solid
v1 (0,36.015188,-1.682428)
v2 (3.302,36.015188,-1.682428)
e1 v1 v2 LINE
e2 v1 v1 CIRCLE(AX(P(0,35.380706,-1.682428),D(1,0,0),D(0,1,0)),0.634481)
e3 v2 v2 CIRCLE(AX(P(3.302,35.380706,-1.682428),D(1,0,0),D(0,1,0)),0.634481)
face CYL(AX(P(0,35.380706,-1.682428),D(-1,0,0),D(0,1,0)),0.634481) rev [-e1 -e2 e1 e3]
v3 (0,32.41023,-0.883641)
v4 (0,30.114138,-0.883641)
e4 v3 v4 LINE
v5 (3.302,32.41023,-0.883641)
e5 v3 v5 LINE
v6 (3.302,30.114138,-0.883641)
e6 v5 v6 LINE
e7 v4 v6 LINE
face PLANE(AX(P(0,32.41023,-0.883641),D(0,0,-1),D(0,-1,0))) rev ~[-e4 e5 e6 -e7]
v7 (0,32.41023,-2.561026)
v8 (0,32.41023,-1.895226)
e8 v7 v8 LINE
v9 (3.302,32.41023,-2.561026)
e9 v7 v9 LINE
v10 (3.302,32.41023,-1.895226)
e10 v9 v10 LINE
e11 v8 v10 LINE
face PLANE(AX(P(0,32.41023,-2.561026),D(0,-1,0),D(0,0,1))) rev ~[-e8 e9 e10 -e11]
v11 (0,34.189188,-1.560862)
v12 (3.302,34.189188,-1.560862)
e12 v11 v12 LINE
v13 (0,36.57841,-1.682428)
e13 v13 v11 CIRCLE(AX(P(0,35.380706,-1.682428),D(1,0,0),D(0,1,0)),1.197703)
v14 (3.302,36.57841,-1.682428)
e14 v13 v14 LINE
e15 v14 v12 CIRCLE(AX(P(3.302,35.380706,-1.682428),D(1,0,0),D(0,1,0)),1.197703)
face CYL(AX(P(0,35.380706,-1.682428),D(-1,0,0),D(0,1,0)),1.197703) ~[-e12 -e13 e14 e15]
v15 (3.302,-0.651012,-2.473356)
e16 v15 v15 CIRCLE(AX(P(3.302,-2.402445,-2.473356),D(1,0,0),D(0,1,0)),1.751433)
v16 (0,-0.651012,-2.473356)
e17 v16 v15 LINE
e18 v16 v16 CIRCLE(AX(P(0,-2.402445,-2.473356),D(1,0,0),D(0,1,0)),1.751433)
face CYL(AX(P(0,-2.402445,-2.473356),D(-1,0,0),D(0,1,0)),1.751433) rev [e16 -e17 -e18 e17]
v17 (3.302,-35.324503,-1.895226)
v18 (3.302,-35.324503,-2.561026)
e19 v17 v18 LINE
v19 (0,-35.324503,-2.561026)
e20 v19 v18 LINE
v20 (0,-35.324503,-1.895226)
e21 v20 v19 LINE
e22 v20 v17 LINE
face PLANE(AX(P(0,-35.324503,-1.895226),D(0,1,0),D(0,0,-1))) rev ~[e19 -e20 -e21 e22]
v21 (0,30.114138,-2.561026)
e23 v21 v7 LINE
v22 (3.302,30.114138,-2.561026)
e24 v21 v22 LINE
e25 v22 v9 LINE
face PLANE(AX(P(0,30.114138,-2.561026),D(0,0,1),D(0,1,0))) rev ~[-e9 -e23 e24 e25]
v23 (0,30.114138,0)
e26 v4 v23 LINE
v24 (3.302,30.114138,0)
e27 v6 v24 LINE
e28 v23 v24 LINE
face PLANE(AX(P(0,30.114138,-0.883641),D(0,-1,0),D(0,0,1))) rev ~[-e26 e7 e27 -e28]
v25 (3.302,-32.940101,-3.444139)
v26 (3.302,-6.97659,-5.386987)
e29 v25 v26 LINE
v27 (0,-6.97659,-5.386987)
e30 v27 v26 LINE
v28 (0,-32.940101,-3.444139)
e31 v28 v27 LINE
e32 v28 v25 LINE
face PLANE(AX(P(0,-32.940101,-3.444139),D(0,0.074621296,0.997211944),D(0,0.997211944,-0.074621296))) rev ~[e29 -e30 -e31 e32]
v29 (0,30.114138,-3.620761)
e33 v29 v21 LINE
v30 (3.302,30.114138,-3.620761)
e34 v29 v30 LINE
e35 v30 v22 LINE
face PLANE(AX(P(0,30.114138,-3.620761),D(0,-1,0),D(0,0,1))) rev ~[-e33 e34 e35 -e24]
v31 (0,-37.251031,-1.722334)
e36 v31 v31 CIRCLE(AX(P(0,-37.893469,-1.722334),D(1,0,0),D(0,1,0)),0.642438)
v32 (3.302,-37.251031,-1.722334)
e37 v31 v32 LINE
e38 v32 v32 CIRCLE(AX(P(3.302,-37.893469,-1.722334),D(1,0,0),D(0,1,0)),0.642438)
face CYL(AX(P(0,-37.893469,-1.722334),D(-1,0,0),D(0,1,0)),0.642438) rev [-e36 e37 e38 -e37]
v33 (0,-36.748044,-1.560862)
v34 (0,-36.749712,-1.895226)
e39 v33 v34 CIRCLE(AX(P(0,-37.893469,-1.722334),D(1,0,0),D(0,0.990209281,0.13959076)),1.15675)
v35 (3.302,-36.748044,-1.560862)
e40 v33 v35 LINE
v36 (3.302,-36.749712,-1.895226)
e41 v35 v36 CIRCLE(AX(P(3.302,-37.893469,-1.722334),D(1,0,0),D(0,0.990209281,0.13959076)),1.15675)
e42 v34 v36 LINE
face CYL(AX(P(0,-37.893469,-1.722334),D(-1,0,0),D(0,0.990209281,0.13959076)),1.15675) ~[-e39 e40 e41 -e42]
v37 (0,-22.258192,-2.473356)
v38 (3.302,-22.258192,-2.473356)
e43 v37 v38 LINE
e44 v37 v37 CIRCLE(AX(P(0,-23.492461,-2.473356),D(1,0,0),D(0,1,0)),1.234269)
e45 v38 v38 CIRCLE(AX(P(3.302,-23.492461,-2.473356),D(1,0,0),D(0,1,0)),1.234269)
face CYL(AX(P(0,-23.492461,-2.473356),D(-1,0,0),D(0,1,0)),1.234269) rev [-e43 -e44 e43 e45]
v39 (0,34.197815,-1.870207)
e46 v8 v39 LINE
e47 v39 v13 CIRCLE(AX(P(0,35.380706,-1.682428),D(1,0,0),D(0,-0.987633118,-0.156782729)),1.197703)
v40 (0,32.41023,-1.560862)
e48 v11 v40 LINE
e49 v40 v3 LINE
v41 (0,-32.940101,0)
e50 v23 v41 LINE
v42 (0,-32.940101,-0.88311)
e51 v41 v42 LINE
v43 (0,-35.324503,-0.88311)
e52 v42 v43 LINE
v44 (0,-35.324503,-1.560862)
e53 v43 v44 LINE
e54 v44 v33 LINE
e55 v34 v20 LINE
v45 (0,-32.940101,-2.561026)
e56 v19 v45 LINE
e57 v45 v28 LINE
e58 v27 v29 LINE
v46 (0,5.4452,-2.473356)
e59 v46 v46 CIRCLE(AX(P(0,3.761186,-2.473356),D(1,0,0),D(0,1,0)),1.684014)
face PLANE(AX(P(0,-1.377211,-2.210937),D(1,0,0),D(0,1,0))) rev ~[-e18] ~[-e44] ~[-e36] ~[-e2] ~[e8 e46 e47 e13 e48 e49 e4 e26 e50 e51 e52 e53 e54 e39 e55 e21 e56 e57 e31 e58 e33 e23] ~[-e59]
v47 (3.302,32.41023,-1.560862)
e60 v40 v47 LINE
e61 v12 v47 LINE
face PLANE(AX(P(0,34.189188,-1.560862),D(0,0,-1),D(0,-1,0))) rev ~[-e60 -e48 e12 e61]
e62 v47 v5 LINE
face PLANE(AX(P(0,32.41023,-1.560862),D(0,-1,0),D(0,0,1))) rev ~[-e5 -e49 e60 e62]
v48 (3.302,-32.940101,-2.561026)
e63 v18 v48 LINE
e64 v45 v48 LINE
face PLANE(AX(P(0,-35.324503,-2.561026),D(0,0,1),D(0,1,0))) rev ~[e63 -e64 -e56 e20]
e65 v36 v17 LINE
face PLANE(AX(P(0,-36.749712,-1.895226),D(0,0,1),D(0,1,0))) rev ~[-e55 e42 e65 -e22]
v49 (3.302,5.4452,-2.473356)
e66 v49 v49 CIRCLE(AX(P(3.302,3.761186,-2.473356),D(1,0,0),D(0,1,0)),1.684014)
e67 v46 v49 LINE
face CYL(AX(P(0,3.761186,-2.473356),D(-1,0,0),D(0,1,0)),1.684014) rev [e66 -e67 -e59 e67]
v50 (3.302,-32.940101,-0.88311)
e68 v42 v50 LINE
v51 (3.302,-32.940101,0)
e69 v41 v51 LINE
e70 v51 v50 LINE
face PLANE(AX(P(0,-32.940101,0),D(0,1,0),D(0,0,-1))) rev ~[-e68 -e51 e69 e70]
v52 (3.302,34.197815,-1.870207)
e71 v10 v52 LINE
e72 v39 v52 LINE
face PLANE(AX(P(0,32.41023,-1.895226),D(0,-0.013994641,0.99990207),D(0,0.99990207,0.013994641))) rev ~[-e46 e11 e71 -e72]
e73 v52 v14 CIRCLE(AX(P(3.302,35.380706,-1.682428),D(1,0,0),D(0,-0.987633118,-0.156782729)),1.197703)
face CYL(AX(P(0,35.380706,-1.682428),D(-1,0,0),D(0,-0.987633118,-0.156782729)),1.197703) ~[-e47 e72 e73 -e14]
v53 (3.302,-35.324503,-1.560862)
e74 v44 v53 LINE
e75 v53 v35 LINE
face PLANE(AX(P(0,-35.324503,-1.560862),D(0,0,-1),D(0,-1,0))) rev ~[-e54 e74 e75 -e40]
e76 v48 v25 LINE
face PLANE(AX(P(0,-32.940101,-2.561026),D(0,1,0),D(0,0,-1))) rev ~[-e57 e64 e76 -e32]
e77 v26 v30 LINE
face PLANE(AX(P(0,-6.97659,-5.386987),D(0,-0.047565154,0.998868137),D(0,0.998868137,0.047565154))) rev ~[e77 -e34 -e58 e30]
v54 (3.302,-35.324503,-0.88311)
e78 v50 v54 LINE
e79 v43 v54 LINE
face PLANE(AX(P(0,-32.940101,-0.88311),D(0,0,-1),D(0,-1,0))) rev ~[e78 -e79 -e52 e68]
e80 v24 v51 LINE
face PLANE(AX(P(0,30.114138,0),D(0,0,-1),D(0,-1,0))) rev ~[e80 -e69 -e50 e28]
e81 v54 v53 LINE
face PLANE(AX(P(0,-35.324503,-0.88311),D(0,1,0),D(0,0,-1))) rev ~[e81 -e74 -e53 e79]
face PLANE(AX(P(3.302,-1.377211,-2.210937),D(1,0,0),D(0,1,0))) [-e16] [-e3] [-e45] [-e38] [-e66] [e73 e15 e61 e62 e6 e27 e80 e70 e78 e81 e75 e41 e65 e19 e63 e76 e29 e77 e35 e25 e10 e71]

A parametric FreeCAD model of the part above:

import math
import FreeCAD as App
import Part
import Sketcher

V = App.Vector
Q = App.Units.Quantity

doc = App.newDocument("Part")
params = doc.addObject("Spreadsheet::Sheet", "Params")
for row, (alias, value) in enumerate([
    ("pad1_length", "0.13 in"),
], start=1):
    params.set(f"A{row}", alias)
    params.set(f"B{row}", "=" + value)
    params.setAlias(f"B{row}", alias)

body = doc.addObject("PartDesign::Body", "Body")

sketch1 = body.newObject("Sketcher::SketchObject", "Sketch")
sketch1.AttachmentSupport = (doc.getObject("YZ_Plane"), [""])
sketch1.MapMode = "FlatFace"
sketch1.addGeometry([
    Part.LineSegment(V(30.11, 0, 0), V(-32.94, 0, 0)),
    Part.LineSegment(V(-32.94, 0, 0), V(-32.94, -0.88, 0)),
    Part.LineSegment(V(-32.94, -0.88, 0), V(-35.32, -0.88, 0)),
    Part.LineSegment(V(-35.32, -0.88, 0), V(-35.32, -1.56, 0)),
    Part.LineSegment(V(-35.32, -1.56, 0), V(-36.75, -1.56, 0)),
    Part.ArcOfCircle(Part.Circle(V(-37.89, -1.72, 0), V(0, 0, 1), 1.16), math.radians(8), math.radians(351)),
    Part.LineSegment(V(-36.75, -1.9, 0), V(-35.32, -1.9, 0)),
    Part.LineSegment(V(-35.32, -1.9, 0), V(-35.32, -2.56, 0)),
    Part.LineSegment(V(-35.32, -2.56, 0), V(-32.94, -2.56, 0)),
    Part.LineSegment(V(-32.94, -2.56, 0), V(-32.94, -3.44, 0)),
    Part.LineSegment(V(-32.94, -3.44, 0), V(-6.98, -5.39, 0)),
    Part.LineSegment(V(-6.98, -5.39, 0), V(30.11, -3.62, 0)),
    Part.LineSegment(V(30.11, -3.62, 0), V(30.11, -2.56, 0)),
    Part.LineSegment(V(30.11, -2.56, 0), V(32.41, -2.56, 0)),
    Part.LineSegment(V(32.41, -2.56, 0), V(32.41, -1.9, 0)),
    Part.LineSegment(V(32.41, -1.9, 0), V(34.2, -1.87, 0)),
    Part.ArcOfCircle(Part.Circle(V(35.38, -1.68, 0), V(0, 0, 1), 1.2), math.radians(-171), math.radians(0)),
    Part.ArcOfCircle(Part.Circle(V(35.38, -1.68, 0), V(0, 0, 1), 1.2), math.radians(0), math.radians(174)),
    Part.LineSegment(V(34.19, -1.56, 0), V(32.41, -1.56, 0)),
    Part.LineSegment(V(32.41, -1.56, 0), V(32.41, -0.88, 0)),
    Part.LineSegment(V(32.41, -0.88, 0), V(30.11, -0.88, 0)),
    Part.LineSegment(V(30.11, -0.88, 0), V(30.11, 0, 0)),
    Part.Circle(V(-23.49, -2.47, 0), V(0, 0, 1), 1.23),
    Part.Circle(V(-37.89, -1.72, 0), V(0, 0, 1), 0.64),
    Part.Circle(V(-2.4, -2.47, 0), V(0, 0, 1), 1.75),
    Part.Circle(V(3.76, -2.47, 0), V(0, 0, 1), 1.68),
    Part.Circle(V(35.38, -1.68, 0), V(0, 0, 1), 0.63),
], False)
sketch1.addConstraint([
    Sketcher.Constraint("Coincident", 0, 2, 1, 1),
    Sketcher.Constraint("Coincident", 1, 2, 2, 1),
    Sketcher.Constraint("Coincident", 2, 2, 3, 1),
    Sketcher.Constraint("Coincident", 3, 2, 4, 1),
    Sketcher.Constraint("Coincident", 4, 2, 5, 1),
    Sketcher.Constraint("Coincident", 5, 2, 6, 1),
    Sketcher.Constraint("Coincident", 6, 2, 7, 1),
    Sketcher.Constraint("Coincident", 7, 2, 8, 1),
    Sketcher.Constraint("Coincident", 8, 2, 9, 1),
    Sketcher.Constraint("Coincident", 9, 2, 10, 1),
    Sketcher.Constraint("Coincident", 10, 2, 11, 1),
    Sketcher.Constraint("Coincident", 11, 2, 12, 1),
    Sketcher.Constraint("Coincident", 12, 2, 13, 1),
    Sketcher.Constraint("Coincident", 13, 2, 14, 1),
    Sketcher.Constraint("Coincident", 14, 2, 15, 1),
    Sketcher.Constraint("Coincident", 15, 2, 16, 1),
    Sketcher.Constraint("Tangent", 16, 2, 17, 1),
    Sketcher.Constraint("Coincident", 17, 2, 18, 1),
    Sketcher.Constraint("Coincident", 18, 2, 19, 1),
    Sketcher.Constraint("Coincident", 19, 2, 20, 1),
    Sketcher.Constraint("Coincident", 20, 2, 21, 1),
    Sketcher.Constraint("Coincident", 21, 2, 0, 1),
    Sketcher.Constraint("Horizontal", 0),
    Sketcher.Constraint("Vertical", 1),
    Sketcher.Constraint("Horizontal", 2),
    Sketcher.Constraint("Vertical", 3),
    Sketcher.Constraint("Horizontal", 4),
    Sketcher.Constraint("Horizontal", 6),
    Sketcher.Constraint("Vertical", 7),
    Sketcher.Constraint("Horizontal", 8),
    Sketcher.Constraint("Vertical", 9),
    Sketcher.Constraint("Vertical", 12),
    Sketcher.Constraint("Horizontal", 13),
    Sketcher.Constraint("Vertical", 14),
    Sketcher.Constraint("Horizontal", 18),
    Sketcher.Constraint("Vertical", 19),
    Sketcher.Constraint("Horizontal", 20),
    Sketcher.Constraint("Vertical", 21),
    Sketcher.Constraint("Coincident", 23, 3, 5, 3),
    Sketcher.Constraint("Coincident", 26, 3, 16, 3),
    Sketcher.Constraint("Equal", 16, 17),
    Sketcher.Constraint("PointOnObject", 0, 2, -1),
    Sketcher.Constraint("Horizontal", 22, 3, 24, 3),
    Sketcher.Constraint("Horizontal", 24, 3, 25, 3),
    Sketcher.Constraint("Horizontal", 8, 2, 12, 2),
    Sketcher.Constraint("Horizontal", 6, 2, 14, 2),
    Sketcher.Constraint("Horizontal", 26, 3, 16, 2),
    Sketcher.Constraint("Horizontal", 4, 2, 17, 2),
    Sketcher.Constraint("Vertical", 3, 2, 6, 2),
    Sketcher.Constraint("Vertical", 1, 2, 8, 2),
    Sketcher.Constraint("Vertical", 14, 2, 18, 2),
    Sketcher.Constraint("Vertical", 12, 2, 20, 2),
    Sketcher.Constraint("Diameter", 22, Q("2.468539 mm")),
    Sketcher.Constraint("Radius", 5, Q("1.15675 mm")),
    Sketcher.Constraint("Diameter", 23, Q("1.284876 mm")),
    Sketcher.Constraint("Diameter", 24, Q("3.502867 mm")),
    Sketcher.Constraint("Diameter", 25, Q("3.368028 mm")),
    Sketcher.Constraint("Diameter", 26, Q("1.268963 mm")),
    Sketcher.Constraint("DistanceX", 2, 2, 2, 1, Q("2.384402 mm")),
    Sketcher.Constraint("DistanceY", 7, 2, 7, 1, Q("0.6658 mm")),
    Sketcher.Constraint("DistanceX", 22, 3, -1, 1, Q("0.9249 in")),
    Sketcher.Constraint("Radius", 16, Q("1.197703 mm")),
    Sketcher.Constraint("Distance", 10, Q("26.036101 mm")),
    Sketcher.Constraint("DistanceX", 0, 2, 0, 1, Q("63.054239 mm")),
    Sketcher.Constraint("DistanceX", 4, 2, 4, 1, Q("1.423541 mm")),
    Sketcher.Constraint("DistanceX", 6, 1, 6, 2, Q("1.425209 mm")),
    Sketcher.Constraint("DistanceX", 13, 1, 13, 2, Q("2.296092 mm")),
    Sketcher.Constraint("DistanceY", 1, 2, 1, 1, Q("0.88311 mm")),
    Sketcher.Constraint("DistanceY", 3, 2, 3, 1, Q("0.677752 mm")),
    Sketcher.Constraint("DistanceY", 19, 1, 19, 2, Q("0.677221 mm")),
    Sketcher.Constraint("DistanceX", 0, 2, -1, 1, Q("32.940101 mm")),
    Sketcher.Constraint("DistanceY", 12, 2, 16, 3, Q("0.878599 mm")),
    Sketcher.Constraint("Distance", 15, Q("1.787759 mm")),
    Sketcher.Constraint("DistanceX", 18, 2, 18, 1, Q("1.778958 mm")),
    Sketcher.Constraint("DistanceY", 9, 2, 9, 1, Q("0.883113 mm")),
    Sketcher.Constraint("DistanceY", 12, 1, 12, 2, Q("1.059735 mm")),
    Sketcher.Constraint("DistanceX", 5, 3, -1, 1, Q("37.893469 mm")),
    Sketcher.Constraint("DistanceX", 10, 2, -1, 1, Q("6.97659 mm")),
    Sketcher.Constraint("DistanceX", 24, 3, 16, 3, Q("37.783151 mm")),
    Sketcher.Constraint("DistanceX", 24, 3, 25, 3, Q("6.163632 mm")),
    Sketcher.Constraint("DistanceY", 10, 2, 24, 3, Q("2.913631 mm")),
])
pad1 = body.newObject("PartDesign::Pad", "Pad")
pad1.Profile = sketch1
pad1.setExpression("Length", "Params.pad1_length")

doc.recompute()
